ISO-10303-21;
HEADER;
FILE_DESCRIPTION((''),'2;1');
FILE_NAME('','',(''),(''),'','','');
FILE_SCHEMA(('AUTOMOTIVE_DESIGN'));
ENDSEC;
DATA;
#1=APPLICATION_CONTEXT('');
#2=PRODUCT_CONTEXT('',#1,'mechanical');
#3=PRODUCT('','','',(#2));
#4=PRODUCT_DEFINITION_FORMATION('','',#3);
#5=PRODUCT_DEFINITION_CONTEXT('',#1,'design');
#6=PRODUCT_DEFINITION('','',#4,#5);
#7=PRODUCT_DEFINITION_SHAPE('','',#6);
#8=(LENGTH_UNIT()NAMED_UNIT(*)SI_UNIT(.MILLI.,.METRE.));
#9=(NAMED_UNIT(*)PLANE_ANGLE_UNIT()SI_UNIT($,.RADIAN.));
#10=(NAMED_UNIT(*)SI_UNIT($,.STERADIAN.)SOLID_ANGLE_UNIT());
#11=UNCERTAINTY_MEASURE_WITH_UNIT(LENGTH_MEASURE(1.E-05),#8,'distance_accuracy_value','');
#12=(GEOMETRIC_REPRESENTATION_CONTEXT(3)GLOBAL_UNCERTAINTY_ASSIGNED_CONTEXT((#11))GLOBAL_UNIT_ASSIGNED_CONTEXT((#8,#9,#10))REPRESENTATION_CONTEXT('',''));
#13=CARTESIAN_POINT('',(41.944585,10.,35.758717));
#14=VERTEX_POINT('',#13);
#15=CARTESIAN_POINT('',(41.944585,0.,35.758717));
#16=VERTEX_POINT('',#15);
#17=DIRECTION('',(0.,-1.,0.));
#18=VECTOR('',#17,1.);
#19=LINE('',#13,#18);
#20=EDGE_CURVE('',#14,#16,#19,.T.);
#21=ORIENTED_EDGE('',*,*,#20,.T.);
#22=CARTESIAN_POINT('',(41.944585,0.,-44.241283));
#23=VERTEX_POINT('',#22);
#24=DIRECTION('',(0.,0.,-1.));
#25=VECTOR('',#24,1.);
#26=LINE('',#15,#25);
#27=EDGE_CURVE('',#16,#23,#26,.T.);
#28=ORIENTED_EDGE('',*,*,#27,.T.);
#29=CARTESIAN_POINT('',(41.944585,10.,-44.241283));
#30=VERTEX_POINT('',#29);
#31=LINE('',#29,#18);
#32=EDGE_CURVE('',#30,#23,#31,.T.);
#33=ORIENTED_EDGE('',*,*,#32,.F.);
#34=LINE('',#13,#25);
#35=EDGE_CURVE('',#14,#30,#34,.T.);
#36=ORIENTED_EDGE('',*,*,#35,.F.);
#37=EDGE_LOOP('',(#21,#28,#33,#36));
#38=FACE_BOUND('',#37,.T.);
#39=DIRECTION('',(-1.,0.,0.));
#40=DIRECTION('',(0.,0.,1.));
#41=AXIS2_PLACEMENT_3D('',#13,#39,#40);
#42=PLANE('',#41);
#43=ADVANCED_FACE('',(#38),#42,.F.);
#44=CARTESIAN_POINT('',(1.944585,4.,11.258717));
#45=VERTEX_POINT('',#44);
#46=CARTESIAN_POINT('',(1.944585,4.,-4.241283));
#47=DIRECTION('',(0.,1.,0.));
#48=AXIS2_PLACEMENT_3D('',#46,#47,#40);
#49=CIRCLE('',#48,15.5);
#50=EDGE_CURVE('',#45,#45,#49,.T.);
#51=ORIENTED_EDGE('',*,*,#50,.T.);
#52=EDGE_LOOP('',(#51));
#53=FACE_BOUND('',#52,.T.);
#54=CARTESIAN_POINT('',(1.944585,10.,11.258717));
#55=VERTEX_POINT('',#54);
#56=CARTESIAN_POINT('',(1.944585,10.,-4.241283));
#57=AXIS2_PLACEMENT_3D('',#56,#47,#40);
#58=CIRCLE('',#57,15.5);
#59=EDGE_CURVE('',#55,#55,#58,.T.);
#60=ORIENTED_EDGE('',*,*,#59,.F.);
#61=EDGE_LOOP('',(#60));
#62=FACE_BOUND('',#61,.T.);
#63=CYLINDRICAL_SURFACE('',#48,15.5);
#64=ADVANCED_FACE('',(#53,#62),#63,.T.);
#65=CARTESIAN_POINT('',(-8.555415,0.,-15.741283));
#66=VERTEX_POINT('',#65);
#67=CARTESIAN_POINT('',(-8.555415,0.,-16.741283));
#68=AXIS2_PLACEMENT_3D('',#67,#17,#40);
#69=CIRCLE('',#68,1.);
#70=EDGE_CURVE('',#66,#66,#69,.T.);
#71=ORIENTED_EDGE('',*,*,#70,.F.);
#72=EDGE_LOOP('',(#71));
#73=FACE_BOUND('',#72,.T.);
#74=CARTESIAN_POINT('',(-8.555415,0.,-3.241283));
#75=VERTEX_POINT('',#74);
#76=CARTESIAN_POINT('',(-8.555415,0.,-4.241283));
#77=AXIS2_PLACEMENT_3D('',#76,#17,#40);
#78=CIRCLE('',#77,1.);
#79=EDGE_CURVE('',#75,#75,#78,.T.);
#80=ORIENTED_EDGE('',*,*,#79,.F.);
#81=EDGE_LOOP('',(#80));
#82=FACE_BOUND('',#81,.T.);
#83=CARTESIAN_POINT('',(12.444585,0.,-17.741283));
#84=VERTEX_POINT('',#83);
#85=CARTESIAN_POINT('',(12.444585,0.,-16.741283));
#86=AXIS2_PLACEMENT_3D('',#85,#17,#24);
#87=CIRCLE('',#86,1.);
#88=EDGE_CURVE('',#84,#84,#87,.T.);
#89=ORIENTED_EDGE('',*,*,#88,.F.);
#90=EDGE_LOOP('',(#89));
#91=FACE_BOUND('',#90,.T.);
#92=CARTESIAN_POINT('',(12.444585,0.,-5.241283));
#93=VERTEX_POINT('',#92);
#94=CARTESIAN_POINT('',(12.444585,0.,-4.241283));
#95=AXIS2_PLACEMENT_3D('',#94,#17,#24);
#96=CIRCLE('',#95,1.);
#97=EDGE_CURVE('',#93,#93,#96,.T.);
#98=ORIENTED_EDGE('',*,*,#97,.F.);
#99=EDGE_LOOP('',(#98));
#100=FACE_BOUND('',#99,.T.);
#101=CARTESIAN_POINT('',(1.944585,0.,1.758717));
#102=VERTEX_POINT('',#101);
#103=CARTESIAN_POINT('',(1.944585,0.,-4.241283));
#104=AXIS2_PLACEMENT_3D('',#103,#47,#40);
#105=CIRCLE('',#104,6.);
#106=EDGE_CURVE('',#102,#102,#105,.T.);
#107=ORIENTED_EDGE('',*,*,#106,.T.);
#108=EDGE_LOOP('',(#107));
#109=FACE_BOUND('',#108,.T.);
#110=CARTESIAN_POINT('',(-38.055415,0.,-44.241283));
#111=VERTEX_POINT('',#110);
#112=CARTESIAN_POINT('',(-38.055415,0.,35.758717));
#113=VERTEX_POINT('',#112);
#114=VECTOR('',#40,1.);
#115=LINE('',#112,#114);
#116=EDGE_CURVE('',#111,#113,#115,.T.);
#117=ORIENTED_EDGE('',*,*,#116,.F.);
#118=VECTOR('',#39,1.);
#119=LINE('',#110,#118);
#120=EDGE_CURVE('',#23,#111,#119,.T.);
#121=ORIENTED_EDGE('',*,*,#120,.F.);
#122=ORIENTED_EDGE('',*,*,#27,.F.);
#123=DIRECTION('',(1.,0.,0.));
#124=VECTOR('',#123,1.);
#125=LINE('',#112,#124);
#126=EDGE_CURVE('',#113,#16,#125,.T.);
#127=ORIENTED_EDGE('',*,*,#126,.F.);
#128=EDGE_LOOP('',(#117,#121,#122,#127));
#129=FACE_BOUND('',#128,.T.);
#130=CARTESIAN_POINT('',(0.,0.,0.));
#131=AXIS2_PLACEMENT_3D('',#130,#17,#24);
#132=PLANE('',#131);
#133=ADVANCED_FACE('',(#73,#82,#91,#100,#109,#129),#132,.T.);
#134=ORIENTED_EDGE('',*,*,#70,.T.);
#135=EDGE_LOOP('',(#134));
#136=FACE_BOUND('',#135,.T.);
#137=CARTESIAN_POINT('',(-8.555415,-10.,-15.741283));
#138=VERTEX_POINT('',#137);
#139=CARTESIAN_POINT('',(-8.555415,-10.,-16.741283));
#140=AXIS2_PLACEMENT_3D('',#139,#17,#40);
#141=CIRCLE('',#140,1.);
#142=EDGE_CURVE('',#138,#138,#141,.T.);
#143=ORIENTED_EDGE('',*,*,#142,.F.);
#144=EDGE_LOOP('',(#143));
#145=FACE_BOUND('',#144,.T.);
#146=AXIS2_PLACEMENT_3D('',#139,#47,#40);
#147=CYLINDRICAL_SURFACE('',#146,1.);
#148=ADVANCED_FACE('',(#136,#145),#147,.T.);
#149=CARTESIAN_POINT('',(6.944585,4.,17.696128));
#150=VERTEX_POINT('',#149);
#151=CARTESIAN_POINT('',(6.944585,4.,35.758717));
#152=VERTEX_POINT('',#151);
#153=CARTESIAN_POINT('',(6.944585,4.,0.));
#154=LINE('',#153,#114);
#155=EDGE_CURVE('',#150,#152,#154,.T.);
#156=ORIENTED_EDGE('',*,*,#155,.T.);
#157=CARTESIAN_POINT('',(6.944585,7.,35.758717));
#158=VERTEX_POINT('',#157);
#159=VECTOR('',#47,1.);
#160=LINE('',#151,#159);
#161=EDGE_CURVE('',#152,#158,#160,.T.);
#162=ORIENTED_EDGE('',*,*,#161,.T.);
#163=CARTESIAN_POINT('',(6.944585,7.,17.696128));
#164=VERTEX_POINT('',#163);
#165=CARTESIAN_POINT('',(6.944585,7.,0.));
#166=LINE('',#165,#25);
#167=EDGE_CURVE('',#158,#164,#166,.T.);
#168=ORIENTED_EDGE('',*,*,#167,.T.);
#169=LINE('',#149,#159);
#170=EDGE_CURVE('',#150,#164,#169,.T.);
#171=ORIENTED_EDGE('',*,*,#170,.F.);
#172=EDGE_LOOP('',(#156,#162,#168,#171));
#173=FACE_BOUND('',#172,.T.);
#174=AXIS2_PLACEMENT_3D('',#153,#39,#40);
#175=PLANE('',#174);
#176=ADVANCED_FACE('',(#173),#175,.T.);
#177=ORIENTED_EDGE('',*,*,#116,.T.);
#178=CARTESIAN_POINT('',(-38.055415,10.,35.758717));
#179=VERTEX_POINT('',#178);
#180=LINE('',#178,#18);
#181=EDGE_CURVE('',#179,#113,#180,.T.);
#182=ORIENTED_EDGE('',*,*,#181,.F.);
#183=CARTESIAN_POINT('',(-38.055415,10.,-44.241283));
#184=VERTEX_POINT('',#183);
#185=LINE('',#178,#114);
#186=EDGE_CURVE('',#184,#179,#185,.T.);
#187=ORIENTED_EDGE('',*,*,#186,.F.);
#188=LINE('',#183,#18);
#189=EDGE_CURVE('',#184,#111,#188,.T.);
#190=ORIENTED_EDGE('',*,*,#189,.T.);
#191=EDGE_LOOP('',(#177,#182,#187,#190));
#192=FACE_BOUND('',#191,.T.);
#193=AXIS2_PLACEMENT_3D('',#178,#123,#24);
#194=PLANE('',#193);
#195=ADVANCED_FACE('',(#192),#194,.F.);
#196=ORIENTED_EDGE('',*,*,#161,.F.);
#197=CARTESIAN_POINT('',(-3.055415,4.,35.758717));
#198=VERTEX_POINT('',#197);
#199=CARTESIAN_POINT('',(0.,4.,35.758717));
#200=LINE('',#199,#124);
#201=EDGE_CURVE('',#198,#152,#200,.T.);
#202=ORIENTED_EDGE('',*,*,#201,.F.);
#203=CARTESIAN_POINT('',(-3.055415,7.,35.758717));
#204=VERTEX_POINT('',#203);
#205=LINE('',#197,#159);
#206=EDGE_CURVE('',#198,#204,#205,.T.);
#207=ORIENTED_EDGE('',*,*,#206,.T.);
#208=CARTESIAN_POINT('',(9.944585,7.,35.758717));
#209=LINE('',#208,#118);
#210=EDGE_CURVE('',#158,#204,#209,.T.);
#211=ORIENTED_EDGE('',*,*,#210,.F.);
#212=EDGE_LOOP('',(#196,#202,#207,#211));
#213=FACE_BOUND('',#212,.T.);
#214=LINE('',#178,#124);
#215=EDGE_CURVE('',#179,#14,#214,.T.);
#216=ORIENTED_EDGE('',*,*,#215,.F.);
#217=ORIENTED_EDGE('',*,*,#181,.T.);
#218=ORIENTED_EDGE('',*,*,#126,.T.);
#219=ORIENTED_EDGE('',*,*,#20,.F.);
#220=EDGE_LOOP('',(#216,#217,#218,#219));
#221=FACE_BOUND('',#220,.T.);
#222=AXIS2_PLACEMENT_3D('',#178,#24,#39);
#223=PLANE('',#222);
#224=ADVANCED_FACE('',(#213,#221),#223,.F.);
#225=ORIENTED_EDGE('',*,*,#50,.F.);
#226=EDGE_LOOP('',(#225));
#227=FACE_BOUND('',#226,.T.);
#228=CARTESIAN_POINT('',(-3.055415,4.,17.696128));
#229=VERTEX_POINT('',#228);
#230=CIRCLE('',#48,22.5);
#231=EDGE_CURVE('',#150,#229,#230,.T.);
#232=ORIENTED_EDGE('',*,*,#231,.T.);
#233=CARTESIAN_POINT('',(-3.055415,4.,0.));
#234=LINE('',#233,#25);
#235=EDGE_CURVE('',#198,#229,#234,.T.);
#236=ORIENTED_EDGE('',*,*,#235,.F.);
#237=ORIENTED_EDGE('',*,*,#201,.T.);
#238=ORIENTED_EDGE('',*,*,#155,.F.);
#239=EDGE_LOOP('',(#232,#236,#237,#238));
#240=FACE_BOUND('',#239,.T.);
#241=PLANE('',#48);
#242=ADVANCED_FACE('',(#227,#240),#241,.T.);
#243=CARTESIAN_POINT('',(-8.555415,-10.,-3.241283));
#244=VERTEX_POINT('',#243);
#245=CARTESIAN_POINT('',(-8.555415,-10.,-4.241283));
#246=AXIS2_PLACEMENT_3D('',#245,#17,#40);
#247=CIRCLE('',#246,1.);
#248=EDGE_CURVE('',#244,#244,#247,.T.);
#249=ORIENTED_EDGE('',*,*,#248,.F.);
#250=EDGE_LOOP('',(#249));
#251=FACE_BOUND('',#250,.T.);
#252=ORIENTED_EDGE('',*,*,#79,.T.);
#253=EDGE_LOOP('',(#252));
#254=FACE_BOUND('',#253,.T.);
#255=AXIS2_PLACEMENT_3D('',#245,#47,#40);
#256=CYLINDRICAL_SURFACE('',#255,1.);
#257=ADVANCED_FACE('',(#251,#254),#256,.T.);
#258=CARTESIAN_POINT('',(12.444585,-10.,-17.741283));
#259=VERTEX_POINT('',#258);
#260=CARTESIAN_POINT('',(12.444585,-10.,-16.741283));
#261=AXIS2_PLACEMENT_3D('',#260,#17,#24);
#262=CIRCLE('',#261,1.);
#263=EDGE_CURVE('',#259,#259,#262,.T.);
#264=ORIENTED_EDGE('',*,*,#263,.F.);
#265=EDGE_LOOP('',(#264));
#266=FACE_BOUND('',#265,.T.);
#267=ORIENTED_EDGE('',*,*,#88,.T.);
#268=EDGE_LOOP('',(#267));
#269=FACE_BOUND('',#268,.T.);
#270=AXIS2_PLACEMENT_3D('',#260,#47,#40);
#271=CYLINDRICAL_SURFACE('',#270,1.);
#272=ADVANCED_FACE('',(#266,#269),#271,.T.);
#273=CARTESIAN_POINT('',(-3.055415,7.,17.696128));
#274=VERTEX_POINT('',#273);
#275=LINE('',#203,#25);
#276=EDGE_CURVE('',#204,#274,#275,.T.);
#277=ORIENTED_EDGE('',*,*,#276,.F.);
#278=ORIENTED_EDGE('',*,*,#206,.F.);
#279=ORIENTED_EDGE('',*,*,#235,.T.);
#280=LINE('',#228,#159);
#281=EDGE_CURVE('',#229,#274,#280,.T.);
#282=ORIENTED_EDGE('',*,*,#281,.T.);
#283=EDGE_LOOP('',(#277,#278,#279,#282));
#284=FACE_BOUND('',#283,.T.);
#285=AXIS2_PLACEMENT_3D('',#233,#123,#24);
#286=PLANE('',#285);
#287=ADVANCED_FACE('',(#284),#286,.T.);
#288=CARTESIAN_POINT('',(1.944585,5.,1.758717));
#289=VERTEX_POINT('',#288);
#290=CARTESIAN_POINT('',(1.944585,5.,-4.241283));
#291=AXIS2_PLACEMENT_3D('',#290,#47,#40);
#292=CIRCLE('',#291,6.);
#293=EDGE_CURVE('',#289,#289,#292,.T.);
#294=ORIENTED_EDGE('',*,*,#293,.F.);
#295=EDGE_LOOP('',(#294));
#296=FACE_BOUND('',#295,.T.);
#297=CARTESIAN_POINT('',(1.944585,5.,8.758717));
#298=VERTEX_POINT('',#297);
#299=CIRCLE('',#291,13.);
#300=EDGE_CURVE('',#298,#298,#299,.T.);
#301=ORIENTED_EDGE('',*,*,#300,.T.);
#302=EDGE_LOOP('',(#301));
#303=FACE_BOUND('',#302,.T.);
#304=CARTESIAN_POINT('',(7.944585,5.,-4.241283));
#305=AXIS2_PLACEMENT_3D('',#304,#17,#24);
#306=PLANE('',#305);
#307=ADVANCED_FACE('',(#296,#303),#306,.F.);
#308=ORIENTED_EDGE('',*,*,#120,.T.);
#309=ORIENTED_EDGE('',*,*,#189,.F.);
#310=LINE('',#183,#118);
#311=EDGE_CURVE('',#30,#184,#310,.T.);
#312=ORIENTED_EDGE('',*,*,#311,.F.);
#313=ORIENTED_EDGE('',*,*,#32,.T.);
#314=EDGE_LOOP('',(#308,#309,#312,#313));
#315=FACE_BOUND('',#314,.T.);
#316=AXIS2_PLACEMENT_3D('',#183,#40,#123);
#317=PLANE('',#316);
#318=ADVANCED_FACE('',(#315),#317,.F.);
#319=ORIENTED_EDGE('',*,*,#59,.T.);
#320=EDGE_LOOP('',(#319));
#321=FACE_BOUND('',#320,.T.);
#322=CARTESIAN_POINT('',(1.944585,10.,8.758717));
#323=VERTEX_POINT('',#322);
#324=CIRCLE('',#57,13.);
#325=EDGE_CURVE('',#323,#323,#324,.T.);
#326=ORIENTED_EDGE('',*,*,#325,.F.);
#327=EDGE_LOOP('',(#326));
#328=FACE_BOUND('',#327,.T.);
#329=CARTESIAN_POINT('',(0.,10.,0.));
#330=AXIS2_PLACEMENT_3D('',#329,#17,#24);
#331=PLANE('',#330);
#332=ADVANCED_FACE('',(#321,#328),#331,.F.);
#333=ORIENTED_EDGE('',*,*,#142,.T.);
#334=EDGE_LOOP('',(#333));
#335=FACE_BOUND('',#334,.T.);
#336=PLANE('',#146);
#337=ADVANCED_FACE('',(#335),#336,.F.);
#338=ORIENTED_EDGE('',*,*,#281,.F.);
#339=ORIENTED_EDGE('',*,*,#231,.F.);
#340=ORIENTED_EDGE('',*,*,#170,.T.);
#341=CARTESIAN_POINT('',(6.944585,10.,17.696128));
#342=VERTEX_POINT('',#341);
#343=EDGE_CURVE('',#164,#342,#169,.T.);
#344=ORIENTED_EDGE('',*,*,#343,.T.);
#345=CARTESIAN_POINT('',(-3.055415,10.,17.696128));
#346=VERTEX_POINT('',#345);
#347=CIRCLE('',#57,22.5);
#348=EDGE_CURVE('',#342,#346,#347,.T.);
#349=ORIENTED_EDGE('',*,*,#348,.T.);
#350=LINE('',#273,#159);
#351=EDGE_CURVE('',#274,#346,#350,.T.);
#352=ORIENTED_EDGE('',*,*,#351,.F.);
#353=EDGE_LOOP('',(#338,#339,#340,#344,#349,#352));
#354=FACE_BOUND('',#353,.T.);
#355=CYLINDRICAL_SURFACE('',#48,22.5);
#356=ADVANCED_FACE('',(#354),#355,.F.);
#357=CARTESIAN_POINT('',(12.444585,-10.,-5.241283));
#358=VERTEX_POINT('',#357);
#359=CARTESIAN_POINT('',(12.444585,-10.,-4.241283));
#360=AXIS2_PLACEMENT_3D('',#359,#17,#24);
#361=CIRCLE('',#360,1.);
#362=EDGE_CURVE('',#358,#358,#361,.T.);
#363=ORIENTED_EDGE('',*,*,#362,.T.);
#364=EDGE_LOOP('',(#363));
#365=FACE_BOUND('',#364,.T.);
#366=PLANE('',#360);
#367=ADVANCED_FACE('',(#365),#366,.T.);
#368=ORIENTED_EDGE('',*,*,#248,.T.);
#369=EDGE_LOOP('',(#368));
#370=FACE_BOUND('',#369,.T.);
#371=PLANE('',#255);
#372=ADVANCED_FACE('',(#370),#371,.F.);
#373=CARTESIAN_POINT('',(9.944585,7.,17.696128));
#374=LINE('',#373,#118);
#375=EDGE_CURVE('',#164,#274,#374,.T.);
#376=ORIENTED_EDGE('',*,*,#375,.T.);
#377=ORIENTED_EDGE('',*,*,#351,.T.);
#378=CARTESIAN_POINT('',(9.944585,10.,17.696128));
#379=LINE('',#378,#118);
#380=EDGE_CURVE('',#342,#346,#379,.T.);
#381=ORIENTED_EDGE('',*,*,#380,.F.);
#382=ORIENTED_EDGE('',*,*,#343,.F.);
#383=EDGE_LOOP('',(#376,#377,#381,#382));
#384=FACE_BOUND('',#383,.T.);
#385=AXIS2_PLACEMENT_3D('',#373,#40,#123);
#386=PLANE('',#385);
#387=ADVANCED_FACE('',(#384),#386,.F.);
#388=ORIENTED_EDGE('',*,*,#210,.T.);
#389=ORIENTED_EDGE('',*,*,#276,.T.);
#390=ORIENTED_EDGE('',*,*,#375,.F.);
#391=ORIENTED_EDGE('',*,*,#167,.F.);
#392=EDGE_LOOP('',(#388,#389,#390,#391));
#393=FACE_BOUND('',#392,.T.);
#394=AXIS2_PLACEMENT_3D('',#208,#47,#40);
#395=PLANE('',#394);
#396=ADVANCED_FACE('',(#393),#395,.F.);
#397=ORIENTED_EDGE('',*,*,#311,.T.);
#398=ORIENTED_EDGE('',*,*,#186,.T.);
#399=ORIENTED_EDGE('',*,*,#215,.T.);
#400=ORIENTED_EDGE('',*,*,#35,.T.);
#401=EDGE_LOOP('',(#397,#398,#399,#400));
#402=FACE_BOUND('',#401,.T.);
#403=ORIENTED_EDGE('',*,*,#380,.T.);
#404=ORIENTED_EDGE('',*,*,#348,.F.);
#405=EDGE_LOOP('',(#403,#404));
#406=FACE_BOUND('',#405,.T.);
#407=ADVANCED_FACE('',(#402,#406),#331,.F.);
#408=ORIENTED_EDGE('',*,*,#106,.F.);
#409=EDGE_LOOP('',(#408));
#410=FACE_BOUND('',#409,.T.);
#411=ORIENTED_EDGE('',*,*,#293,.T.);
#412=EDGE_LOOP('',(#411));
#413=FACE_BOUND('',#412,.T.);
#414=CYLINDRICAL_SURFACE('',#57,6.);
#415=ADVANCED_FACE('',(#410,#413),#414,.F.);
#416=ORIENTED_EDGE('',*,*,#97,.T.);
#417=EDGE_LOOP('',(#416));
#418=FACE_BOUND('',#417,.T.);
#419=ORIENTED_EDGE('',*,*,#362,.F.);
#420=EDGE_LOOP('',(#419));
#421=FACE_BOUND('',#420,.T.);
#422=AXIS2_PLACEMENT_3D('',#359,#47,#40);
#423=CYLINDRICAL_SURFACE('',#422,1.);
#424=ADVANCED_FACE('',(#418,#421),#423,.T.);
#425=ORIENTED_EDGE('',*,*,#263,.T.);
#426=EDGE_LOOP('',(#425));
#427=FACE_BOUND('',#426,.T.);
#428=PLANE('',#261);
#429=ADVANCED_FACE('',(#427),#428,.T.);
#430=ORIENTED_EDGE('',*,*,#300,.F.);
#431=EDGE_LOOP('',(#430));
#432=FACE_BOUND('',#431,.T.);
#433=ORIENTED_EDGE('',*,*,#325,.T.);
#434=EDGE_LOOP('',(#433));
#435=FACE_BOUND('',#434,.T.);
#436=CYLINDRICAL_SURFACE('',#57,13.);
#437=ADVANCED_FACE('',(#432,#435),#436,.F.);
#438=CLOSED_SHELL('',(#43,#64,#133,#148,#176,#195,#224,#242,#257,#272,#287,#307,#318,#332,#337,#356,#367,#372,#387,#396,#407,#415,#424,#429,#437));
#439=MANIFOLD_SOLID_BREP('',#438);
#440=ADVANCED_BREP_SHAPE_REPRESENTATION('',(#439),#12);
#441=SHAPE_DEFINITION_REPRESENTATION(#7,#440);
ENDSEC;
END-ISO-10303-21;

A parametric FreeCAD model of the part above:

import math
import FreeCAD as App
import Part
import Sketcher


def add_polygon(sketch, points):
    """Adds a closed chain of lines whose ends are joined by coincident constraints."""
    first, n = sketch.GeometryCount, len(points)
    for a, b in zip(points, points[1:] + points[:1]):
        sketch.addGeometry(Part.LineSegment(App.Vector(*a, 0), App.Vector(*b, 0)), False)
    for i in range(n):
        sketch.addConstraint(Sketcher.Constraint("Coincident", first + i, 2, first + (i + 1) % n, 1))

doc = App.newDocument("Part")
body = doc.addObject("PartDesign::Body", "Body")

sketch1 = doc.addObject("Sketcher::SketchObject", "Sketch")
body.addObject(sketch1)
sketch1.AttachmentSupport = (doc.XZ_Plane, [""])
sketch1.MapMode = "FlatFace"
add_polygon(sketch1, [(-38, -44), (-38, 36), (42, 36), (42, -44)])
sketch1.addConstraint([
    Sketcher.Constraint("Vertical", 0),
    Sketcher.Constraint("Horizontal", 1),
    Sketcher.Constraint("Vertical", 2),
    Sketcher.Constraint("Horizontal", 3),
    Sketcher.Constraint("Equal", 3, 0),
    Sketcher.Constraint("DistanceX", 1, 1, 1, 2, 80.0),
    Sketcher.Constraint("DistanceX", 0, 2, -1, 1, 38.055415),
    Sketcher.Constraint("DistanceY", -1, 1, 0, 2, 35.758717),
])
pad1 = doc.addObject("PartDesign::Pad", "Pad")
body.addObject(pad1)
pad1.Profile = sketch1
pad1.Length = 10
pad1.Reversed = True

sketch2 = doc.addObject("Sketcher::SketchObject", "Sketch001")
body.addObject(sketch2)
sketch2.AttachmentSupport = (doc.XZ_Plane, [""])
sketch2.MapMode = "FlatFace"
sketch2.AttachmentOffset = App.Placement(App.Vector(0, 0, -10), App.Rotation())
sketch2.addGeometry(Part.Circle(App.Vector(2, -4, 0), App.Vector(0, 0, 1), 6), False)
sketch2.addConstraint([
    Sketcher.Constraint("Diameter", 0, 12.0),
    Sketcher.Constraint("DistanceX", -1, 1, 0, 3, 1.944585),
    Sketcher.Constraint("DistanceY", 0, 3, -1, 1, 4.241283),
])
doc.recompute()
hole = doc.addObject("PartDesign::Hole", "Hole")
body.addObject(hole)
hole.Profile = sketch2
hole.ThreadType = "None"
hole.Diameter = 12
hole.DepthType = "ThroughAll"
hole.HoleCutType = "Counterbore"
hole.HoleCutDiameter = 26
hole.HoleCutDepth = 5
hole.Reversed = True

sketch3 = doc.addObject("Sketcher::SketchObject", "Sketch002")
body.addObject(sketch3)
sketch3.AttachmentSupport = (doc.XZ_Plane, [""])
sketch3.MapMode = "FlatFace"
sketch3.addGeometry([
    Part.Circle(App.Vector(12.4, -16.7, 0), App.Vector(0, 0, 1), 1),
    Part.Circle(App.Vector(12.4, -4.2, 0), App.Vector(0, 0, 1), 1),
    Part.Circle(App.Vector(-8.6, -16.7, 0), App.Vector(0, 0, 1), 1),
    Part.Circle(App.Vector(-8.6, -4.2, 0), App.Vector(0, 0, 1), 1),
], False)
sketch3.addConstraint([
    Sketcher.Constraint("Equal", 0, 1),
    Sketcher.Constraint("Equal", 1, 2),
    Sketcher.Constraint("Equal", 2, 3),
    Sketcher.Constraint("Horizontal", 0, 3, 2, 3),
    Sketcher.Constraint("Horizontal", 1, 3, 3, 3),
    Sketcher.Constraint("Vertical", 0, 3, 1, 3),
    Sketcher.Constraint("Vertical", 2, 3, 3, 3),
    Sketcher.Constraint("Diameter", 0, 2.0),
    Sketcher.Constraint("DistanceX", 2, 3, 0, 3, 21.0),
    Sketcher.Constraint("DistanceY", 0, 3, 1, 3, 12.5),
    Sketcher.Constraint("DistanceX", -1, 1, 0, 3, 12.444585),
    Sketcher.Constraint("DistanceY", 0, 3, -1, 1, 16.741283),
])
pad2 = doc.addObject("PartDesign::Pad", "Pad001")
body.addObject(pad2)
pad2.Profile = sketch3
pad2.Length = 10

sketch4 = doc.addObject("Sketcher::SketchObject", "Sketch003")
body.addObject(sketch4)
sketch4.AttachmentSupport = (doc.XZ_Plane, [""])
sketch4.MapMode = "FlatFace"
sketch4.AttachmentOffset = App.Placement(App.Vector(0, 0, -10), App.Rotation())
sketch4.addGeometry([
    Part.Circle(App.Vector(2, -4, 0), App.Vector(0, 0, 1), 22),
    Part.Circle(App.Vector(2, -4, 0), App.Vector(0, 0, 1), 16),
], False)
sketch4.addConstraint([
    Sketcher.Constraint("Coincident", 1, 3, 0, 3),
    Sketcher.Constraint("Diameter", 0, 45.0),
    Sketcher.Constraint("Diameter", 1, 31.0),
    Sketcher.Constraint("DistanceX", -1, 1, 0, 3, 1.944585),
    Sketcher.Constraint("DistanceY", 0, 3, -1, 1, 4.241283),
])
pocket1 = doc.addObject("PartDesign::Pocket", "Pocket")
body.addObject(pocket1)
pocket1.Profile = sketch4
pocket1.Length = 6
pocket1.Reversed = True

sketch5 = doc.addObject("Sketcher::SketchObject", "Sketch004")
body.addObject(sketch5)
sketch5.AttachmentSupport = (doc.XZ_Plane, [""])
sketch5.MapMode = "FlatFace"
sketch5.AttachmentOffset = App.Placement(App.Vector(0, 0, -10), App.Rotation())
sketch5.addGeometry([
    Part.LineSegment(App.Vector(7, 36, 0), App.Vector(7, 18, 0)),
    Part.ArcOfCircle(Part.Circle(App.Vector(2, -4, 0), App.Vector(0, 0, 1), 22), math.radians(77), math.radians(103)),
    Part.LineSegment(App.Vector(-3, 18, 0), App.Vector(-3, 36, 0)),
    Part.LineSegment(App.Vector(-3, 36, 0), App.Vector(7, 36, 0)),
], False)
sketch5.addConstraint([
    Sketcher.Constraint("Coincident", 0, 2, 1, 1),
    Sketcher.Constraint("Coincident", 1, 2, 2, 1),
    Sketcher.Constraint("Coincident", 2, 2, 3, 1),
    Sketcher.Constraint("Coincident", 3, 2, 0, 1),
    Sketcher.Constraint("Vertical", 0),
    Sketcher.Constraint("Vertical", 2),
    Sketcher.Constraint("Horizontal", 3),
    Sketcher.Constraint("Horizontal", 0, 2, 1, 2),
    Sketcher.Constraint("Radius", 1, 22.5),
    Sketcher.Constraint("DistanceX", 3, 1, 3, 2, 10.0),
    Sketcher.Constraint("DistanceY", 1, 3, 2, 2, 40.0),
    Sketcher.Constraint("DistanceX", -1, 1, 1, 3, 1.944585),
    Sketcher.Constraint("DistanceY", 1, 3, -1, 1, 4.241283),
])
pocket2 = doc.addObject("PartDesign::Pocket", "Pocket001")
body.addObject(pocket2)
pocket2.Profile = sketch5
pocket2.Length = 6
pocket2.Reversed = True

sketch6 = doc.addObject("Sketcher::SketchObject", "Sketch005")
body.addObject(sketch6)
sketch6.AttachmentSupport = (doc.YZ_Plane, [""])
sketch6.MapMode = "FlatFace"
sketch6.AttachmentOffset = App.Placement(App.Vector(0, 0, -3.055415), App.Rotation())
add_polygon(sketch6, [(10, 35.8), (7, 35.8), (7, 17.7), (10, 17.7)])
sketch6.addConstraint([
    Sketcher.Constraint("Horizontal", 0),
    Sketcher.Constraint("Vertical", 1),
    Sketcher.Constraint("Horizontal", 2),
    Sketcher.Constraint("Vertical", 3),
    Sketcher.Constraint("DistanceX", 0, 2, 0, 1, 3.0),
    Sketcher.Constraint("DistanceX", -1, 1, 0, 2, 7.0),
    Sketcher.Constraint("DistanceY", 1, 2, 1, 1, 18.062589),
    Sketcher.Constraint("DistanceY", -1, 1, 0, 2, 35.758717),
])
pad3 = doc.addObject("PartDesign::Pad", "Pad002")
body.addObject(pad3)
pad3.Profile = sketch6
pad3.Length = 13

doc.recompute()
